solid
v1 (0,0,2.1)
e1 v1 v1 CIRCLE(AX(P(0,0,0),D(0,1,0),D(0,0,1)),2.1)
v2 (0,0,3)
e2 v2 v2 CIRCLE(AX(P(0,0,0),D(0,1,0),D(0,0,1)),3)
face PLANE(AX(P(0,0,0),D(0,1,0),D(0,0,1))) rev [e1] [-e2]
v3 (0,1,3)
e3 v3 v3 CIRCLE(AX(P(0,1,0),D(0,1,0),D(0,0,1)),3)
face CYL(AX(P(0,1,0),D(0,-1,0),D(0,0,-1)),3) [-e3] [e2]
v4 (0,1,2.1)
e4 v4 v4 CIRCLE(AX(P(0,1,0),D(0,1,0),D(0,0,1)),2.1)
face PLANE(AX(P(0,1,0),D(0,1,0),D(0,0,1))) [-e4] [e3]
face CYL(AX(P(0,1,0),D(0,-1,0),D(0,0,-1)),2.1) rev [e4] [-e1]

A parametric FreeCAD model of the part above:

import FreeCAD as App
import Part
import Sketcher

V = App.Vector

doc = App.newDocument("Part")
params = doc.addObject("Spreadsheet::Sheet", "Params")
for row, (alias, value) in enumerate([
    ("sketch1_diameter", "6 mm"),
    ("sketch1_diameter2", "4.2 mm"),
    ("pad1_length", "1 mm"),
], start=1):
    params.set(f"A{row}", alias)
    params.set(f"B{row}", "=" + value)
    params.setAlias(f"B{row}", alias)

body = doc.addObject("PartDesign::Body", "Body")

sketch1 = body.newObject("Sketcher::SketchObject", "Sketch")
sketch1.AttachmentSupport = (doc.getObject("XZ_Plane"), [""])
sketch1.MapMode = "FlatFace"
sketch1.addGeometry([
    Part.Circle(V(0, 0, 0), V(0, 0, 1), 3),
    Part.Circle(V(0, 0, 0), V(0, 0, 1), 2.1),
], False)
sketch1.addConstraint([
    Sketcher.Constraint("Coincident", 0, 3, -1, 1),
    Sketcher.Constraint("Coincident", 1, 3, -1, 1),
    Sketcher.Constraint("Diameter", 0, 6.0),
    Sketcher.Constraint("Diameter", 1, 4.2),
])
sketch1.setExpression("Constraints[2]", "Params.sketch1_diameter")
sketch1.setExpression("Constraints[3]", "Params.sketch1_diameter2")
pad1 = body.newObject("PartDesign::Pad", "Pad")
pad1.Profile = sketch1
pad1.setExpression("Length", "Params.pad1_length")
pad1.Reversed = True

doc.recompute()
